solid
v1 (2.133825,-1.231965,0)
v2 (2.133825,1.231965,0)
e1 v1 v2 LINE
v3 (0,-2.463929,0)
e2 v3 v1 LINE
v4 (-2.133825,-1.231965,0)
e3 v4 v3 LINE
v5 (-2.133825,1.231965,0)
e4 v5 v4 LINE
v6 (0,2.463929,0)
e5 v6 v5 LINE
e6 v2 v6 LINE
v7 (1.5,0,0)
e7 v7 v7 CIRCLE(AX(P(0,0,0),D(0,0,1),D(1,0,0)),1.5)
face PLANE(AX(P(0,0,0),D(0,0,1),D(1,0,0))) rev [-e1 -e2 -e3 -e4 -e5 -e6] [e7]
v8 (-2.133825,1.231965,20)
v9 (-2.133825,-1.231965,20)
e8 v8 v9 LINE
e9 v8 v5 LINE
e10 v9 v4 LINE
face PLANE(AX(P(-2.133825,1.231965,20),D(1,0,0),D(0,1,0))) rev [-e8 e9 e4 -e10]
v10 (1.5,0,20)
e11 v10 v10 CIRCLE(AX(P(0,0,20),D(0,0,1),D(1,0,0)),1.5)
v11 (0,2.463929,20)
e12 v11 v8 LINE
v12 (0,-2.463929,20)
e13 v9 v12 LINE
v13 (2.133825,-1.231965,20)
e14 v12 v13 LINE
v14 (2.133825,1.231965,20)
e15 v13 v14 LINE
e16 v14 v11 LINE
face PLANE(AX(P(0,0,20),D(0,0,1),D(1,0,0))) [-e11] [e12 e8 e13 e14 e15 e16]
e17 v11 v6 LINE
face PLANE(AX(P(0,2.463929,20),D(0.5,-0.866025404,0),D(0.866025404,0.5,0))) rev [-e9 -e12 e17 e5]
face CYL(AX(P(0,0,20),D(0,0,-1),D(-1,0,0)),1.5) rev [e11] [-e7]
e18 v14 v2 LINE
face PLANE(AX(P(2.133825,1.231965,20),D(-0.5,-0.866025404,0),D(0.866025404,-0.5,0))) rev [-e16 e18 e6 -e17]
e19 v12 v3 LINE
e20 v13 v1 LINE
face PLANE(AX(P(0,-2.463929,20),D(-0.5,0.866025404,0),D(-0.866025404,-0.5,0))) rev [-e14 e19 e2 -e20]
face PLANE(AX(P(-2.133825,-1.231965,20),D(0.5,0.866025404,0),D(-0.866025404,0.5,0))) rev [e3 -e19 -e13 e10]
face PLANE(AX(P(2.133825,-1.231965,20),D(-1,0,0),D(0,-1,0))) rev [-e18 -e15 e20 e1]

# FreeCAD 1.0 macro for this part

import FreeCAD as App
import Part
import Sketcher
from FreeCAD import Vector
Q = App.Units.Quantity


def add_polygon(sketch, points):
    """Adds a closed chain of lines whose ends are joined by coincident constraints."""
    first, n = sketch.GeometryCount, len(points)
    for a, b in zip(points, points[1:] + points[:1]):
        sketch.addGeometry(Part.LineSegment(App.Vector(*a, 0), App.Vector(*b, 0)), False)
    for i in range(n):
        sketch.addConstraint(Sketcher.Constraint("Coincident", first + i, 2, first + (i + 1) % n, 1))

doc = App.newDocument("Part")
params = doc.addObject("Spreadsheet::Sheet", "Params")
for row, (alias, value) in enumerate([
    ("sketch1_diameter", "3 mm"),
    ("pad1_length", "20 mm"),
], start=1):
    params.set(f"A{row}", alias)
    params.set(f"B{row}", "=" + value)
    params.setAlias(f"B{row}", alias)

body = doc.addObject("PartDesign::Body", "Body")

sketch1 = doc.addObject("Sketcher::SketchObject", "Sketch")
body.addObject(sketch1)
sketch1.AttachmentSupport = (doc.XY_Plane, [""])
sketch1.MapMode = "FlatFace"
add_polygon(sketch1, [(0, 2.463929), (-2.133825, 1.231965), (-2.133825, -1.231965), (0, -2.463929), (2.133825, -1.231965), (2.133825, 1.231965)])
sketch1.addGeometry(Part.Circle(Vector(0, 0, 0), Vector(0, 0, 1), 1.5), False)
sketch1.addConstraint([
    Sketcher.Constraint("Vertical", 1),
    Sketcher.Constraint("Vertical", 4),
    Sketcher.Constraint("Coincident", 6, 3, -1, 1),
    Sketcher.Constraint("Symmetric", 0, 2, 3, 2, -1, 1),
    Sketcher.Constraint("Symmetric", 2, 2, 5, 2, -1, 1),
    Sketcher.Constraint("PointOnObject", 2, 2, -2),
    Sketcher.Constraint("Parallel", 2, 5),
    Sketcher.Constraint("Horizontal", 1, 2, 3, 2),
    Sketcher.Constraint("Diameter", 6, 3.0),
    Sketcher.Constraint("Angle", 0, Q("-150 deg")),
    Sketcher.Constraint("DistanceY", 1, 2, 1, 1, 2.463929),
    Sketcher.Constraint("Distance", 0, 2.463929),
])
sketch1.setExpression("Constraints[14]", "Params.sketch1_diameter")
pad1 = doc.addObject("PartDesign::Pad", "Pad")
body.addObject(pad1)
pad1.Profile = sketch1
pad1.setExpression("Length", "Params.pad1_length")

doc.recompute()
